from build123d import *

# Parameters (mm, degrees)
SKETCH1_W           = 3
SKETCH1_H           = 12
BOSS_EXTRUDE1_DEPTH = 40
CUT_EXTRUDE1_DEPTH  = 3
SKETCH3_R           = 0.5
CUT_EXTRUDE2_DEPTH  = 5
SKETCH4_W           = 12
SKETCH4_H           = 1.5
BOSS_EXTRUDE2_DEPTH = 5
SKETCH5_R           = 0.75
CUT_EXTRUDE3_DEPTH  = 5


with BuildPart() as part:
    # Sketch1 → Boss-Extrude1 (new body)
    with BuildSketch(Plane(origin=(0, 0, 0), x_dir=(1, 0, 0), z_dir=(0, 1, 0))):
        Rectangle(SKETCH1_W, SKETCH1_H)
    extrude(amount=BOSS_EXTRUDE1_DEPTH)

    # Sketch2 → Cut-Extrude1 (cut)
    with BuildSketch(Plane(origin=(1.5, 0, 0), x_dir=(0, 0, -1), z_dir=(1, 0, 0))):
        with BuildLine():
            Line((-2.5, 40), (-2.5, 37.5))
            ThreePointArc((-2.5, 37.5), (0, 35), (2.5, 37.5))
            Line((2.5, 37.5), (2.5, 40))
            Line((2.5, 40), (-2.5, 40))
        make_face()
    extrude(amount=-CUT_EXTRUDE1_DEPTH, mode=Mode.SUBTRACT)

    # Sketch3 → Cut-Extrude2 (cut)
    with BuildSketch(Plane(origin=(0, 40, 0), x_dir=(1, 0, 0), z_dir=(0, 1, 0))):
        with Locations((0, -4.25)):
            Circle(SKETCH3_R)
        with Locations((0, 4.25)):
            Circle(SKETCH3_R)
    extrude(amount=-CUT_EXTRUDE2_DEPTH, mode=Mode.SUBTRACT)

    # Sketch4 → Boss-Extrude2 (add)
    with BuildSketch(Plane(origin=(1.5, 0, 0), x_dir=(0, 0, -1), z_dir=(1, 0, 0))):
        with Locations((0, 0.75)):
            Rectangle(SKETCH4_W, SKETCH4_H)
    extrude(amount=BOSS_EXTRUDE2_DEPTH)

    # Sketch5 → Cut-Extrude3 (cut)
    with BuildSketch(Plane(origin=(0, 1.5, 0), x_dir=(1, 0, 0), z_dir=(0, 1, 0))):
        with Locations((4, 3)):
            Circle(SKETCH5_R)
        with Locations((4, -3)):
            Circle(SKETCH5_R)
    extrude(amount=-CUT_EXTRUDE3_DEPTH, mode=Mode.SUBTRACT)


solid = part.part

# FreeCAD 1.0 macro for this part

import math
import FreeCAD as App
import Part
import Sketcher

V = App.Vector


def add_polygon(sketch, points):
    """Adds a closed chain of lines whose ends are joined by coincident constraints."""
    first, n = sketch.GeometryCount, len(points)
    for a, b in zip(points, points[1:] + points[:1]):
        sketch.addGeometry(Part.LineSegment(App.Vector(*a, 0), App.Vector(*b, 0)), False)
    for i in range(n):
        sketch.addConstraint(Sketcher.Constraint("Coincident", first + i, 2, first + (i + 1) % n, 1))

doc = App.newDocument("Part")
body = doc.addObject("PartDesign::Body", "Body")

sketch1 = body.newObject("Sketcher::SketchObject", "Sketch")
sketch1.AttachmentSupport = (doc.getObject("XZ_Plane"), [""])
sketch1.MapMode = "FlatFace"
add_polygon(sketch1, [(-1.5, -6), (-1.5, 6), (1.5, 6), (1.5, -6)])
sketch1.addConstraint([
    Sketcher.Constraint("Vertical", 0),
    Sketcher.Constraint("Horizontal", 1),
    Sketcher.Constraint("Vertical", 2),
    Sketcher.Constraint("Horizontal", 3),
    Sketcher.Constraint("Symmetric", 0, 2, 2, 2, -1, 1),
    Sketcher.Constraint("DistanceX", 1, 1, 1, 2, 3.0),
    Sketcher.Constraint("DistanceY", 0, 1, 0, 2, 12.0),
])
pad1 = body.newObject("PartDesign::Pad", "Pad")
pad1.Profile = sketch1
pad1.Length = 40
pad1.Reversed = True

sketch2 = body.newObject("Sketcher::SketchObject", "Sketch001")
sketch2.AttachmentSupport = (doc.getObject("YZ_Plane"), [""])
sketch2.MapMode = "FlatFace"
sketch2.AttachmentOffset = App.Placement(V(0, 0, 1.5), App.Rotation())
sketch2.addGeometry([
    Part.LineSegment(V(40, 2.5, 0), V(37.5, 2.5, 0)),
    Part.ArcOfCircle(Part.Circle(V(37.5, 0, 0), V(0, 0, 1), 2.5), math.radians(90), math.radians(270)),
    Part.LineSegment(V(37.5, -2.5, 0), V(40, -2.5, 0)),
    Part.LineSegment(V(40, -2.5, 0), V(40, 2.5, 0)),
], False)
sketch2.addConstraint([
    Sketcher.Constraint("Tangent", 0, 2, 1, 1),
    Sketcher.Constraint("Tangent", 1, 2, 2, 1),
    Sketcher.Constraint("Coincident", 2, 2, 3, 1),
    Sketcher.Constraint("Coincident", 3, 2, 0, 1),
    Sketcher.Constraint("Horizontal", 0),
    Sketcher.Constraint("Horizontal", 2),
    Sketcher.Constraint("Vertical", 3),
    Sketcher.Constraint("PointOnObject", 1, 3, -1),
    Sketcher.Constraint("Radius", 1, 2.5),
    Sketcher.Constraint("DistanceX", 0, 2, 0, 1, 2.5),
    Sketcher.Constraint("DistanceX", -1, 1, 2, 2, 40.0),
])
pocket1 = body.newObject("PartDesign::Pocket", "Pocket")
pocket1.Profile = sketch2
pocket1.Length = 3

sketch3 = body.newObject("Sketcher::SketchObject", "Sketch002")
sketch3.AttachmentSupport = (doc.getObject("XZ_Plane"), [""])
sketch3.MapMode = "FlatFace"
sketch3.AttachmentOffset = App.Placement(V(0, 0, -40), App.Rotation())
sketch3.addGeometry([
    Part.Circle(V(0, 4.2, 0), V(0, 0, 1), 0.5),
    Part.Circle(V(0, -4.2, 0), V(0, 0, 1), 0.5),
], False)
sketch3.addConstraint([
    Sketcher.Constraint("Equal", 0, 1),
    Sketcher.Constraint("Symmetric", 0, 3, 1, 3, -1, 1),
    Sketcher.Constraint("PointOnObject", 0, 3, -2),
    Sketcher.Constraint("Diameter", 0, 1.0),
    Sketcher.Constraint("DistanceY", 1, 3, 0, 3, 8.5),
])
pocket2 = body.newObject("PartDesign::Pocket", "Pocket001")
pocket2.Profile = sketch3
pocket2.Length = 5
pocket2.Reversed = True

sketch4 = body.newObject("Sketcher::SketchObject", "Sketch003")
sketch4.AttachmentSupport = (doc.getObject("YZ_Plane"), [""])
sketch4.MapMode = "FlatFace"
sketch4.AttachmentOffset = App.Placement(V(0, 0, 1.5), App.Rotation())
add_polygon(sketch4, [(1.5, 6), (0, 6), (0, -6), (1.5, -6)])
sketch4.addConstraint([
    Sketcher.Constraint("Horizontal", 0),
    Sketcher.Constraint("Vertical", 1),
    Sketcher.Constraint("Horizontal", 2),
    Sketcher.Constraint("Vertical", 3),
    Sketcher.Constraint("Symmetric", 0, 2, 1, 2, -1, 1),
    Sketcher.Constraint("DistanceY", 1, 2, 1, 1, 12.0),
    Sketcher.Constraint("DistanceX", 0, 2, 0, 1, 1.5),
])
pad2 = body.newObject("PartDesign::Pad", "Pad001")
pad2.Profile = sketch4
pad2.Length = 5

sketch5 = body.newObject("Sketcher::SketchObject", "Sketch004")
sketch5.AttachmentSupport = (doc.getObject("XZ_Plane"), [""])
sketch5.MapMode = "FlatFace"
sketch5.AttachmentOffset = App.Placement(V(0, 0, -1.5), App.Rotation())
sketch5.addGeometry([
    Part.Circle(V(4, -3, 0), V(0, 0, 1), 0.8),
    Part.Circle(V(4, 3, 0), V(0, 0, 1), 0.8),
], False)
sketch5.addConstraint([
    Sketcher.Constraint("Equal", 0, 1),
    Sketcher.Constraint("Symmetric", 0, 3, 1, 3, -1),
    Sketcher.Constraint("Diameter", 0, 1.5),
    Sketcher.Constraint("DistanceX", -1, 1, 0, 3, 4.0),
    Sketcher.Constraint("DistanceY", 0, 3, -1, 1, 3.0),
])
pocket3 = body.newObject("PartDesign::Pocket", "Pocket002")
pocket3.Profile = sketch5
pocket3.Length = 5
pocket3.Reversed = True

doc.recompute()
